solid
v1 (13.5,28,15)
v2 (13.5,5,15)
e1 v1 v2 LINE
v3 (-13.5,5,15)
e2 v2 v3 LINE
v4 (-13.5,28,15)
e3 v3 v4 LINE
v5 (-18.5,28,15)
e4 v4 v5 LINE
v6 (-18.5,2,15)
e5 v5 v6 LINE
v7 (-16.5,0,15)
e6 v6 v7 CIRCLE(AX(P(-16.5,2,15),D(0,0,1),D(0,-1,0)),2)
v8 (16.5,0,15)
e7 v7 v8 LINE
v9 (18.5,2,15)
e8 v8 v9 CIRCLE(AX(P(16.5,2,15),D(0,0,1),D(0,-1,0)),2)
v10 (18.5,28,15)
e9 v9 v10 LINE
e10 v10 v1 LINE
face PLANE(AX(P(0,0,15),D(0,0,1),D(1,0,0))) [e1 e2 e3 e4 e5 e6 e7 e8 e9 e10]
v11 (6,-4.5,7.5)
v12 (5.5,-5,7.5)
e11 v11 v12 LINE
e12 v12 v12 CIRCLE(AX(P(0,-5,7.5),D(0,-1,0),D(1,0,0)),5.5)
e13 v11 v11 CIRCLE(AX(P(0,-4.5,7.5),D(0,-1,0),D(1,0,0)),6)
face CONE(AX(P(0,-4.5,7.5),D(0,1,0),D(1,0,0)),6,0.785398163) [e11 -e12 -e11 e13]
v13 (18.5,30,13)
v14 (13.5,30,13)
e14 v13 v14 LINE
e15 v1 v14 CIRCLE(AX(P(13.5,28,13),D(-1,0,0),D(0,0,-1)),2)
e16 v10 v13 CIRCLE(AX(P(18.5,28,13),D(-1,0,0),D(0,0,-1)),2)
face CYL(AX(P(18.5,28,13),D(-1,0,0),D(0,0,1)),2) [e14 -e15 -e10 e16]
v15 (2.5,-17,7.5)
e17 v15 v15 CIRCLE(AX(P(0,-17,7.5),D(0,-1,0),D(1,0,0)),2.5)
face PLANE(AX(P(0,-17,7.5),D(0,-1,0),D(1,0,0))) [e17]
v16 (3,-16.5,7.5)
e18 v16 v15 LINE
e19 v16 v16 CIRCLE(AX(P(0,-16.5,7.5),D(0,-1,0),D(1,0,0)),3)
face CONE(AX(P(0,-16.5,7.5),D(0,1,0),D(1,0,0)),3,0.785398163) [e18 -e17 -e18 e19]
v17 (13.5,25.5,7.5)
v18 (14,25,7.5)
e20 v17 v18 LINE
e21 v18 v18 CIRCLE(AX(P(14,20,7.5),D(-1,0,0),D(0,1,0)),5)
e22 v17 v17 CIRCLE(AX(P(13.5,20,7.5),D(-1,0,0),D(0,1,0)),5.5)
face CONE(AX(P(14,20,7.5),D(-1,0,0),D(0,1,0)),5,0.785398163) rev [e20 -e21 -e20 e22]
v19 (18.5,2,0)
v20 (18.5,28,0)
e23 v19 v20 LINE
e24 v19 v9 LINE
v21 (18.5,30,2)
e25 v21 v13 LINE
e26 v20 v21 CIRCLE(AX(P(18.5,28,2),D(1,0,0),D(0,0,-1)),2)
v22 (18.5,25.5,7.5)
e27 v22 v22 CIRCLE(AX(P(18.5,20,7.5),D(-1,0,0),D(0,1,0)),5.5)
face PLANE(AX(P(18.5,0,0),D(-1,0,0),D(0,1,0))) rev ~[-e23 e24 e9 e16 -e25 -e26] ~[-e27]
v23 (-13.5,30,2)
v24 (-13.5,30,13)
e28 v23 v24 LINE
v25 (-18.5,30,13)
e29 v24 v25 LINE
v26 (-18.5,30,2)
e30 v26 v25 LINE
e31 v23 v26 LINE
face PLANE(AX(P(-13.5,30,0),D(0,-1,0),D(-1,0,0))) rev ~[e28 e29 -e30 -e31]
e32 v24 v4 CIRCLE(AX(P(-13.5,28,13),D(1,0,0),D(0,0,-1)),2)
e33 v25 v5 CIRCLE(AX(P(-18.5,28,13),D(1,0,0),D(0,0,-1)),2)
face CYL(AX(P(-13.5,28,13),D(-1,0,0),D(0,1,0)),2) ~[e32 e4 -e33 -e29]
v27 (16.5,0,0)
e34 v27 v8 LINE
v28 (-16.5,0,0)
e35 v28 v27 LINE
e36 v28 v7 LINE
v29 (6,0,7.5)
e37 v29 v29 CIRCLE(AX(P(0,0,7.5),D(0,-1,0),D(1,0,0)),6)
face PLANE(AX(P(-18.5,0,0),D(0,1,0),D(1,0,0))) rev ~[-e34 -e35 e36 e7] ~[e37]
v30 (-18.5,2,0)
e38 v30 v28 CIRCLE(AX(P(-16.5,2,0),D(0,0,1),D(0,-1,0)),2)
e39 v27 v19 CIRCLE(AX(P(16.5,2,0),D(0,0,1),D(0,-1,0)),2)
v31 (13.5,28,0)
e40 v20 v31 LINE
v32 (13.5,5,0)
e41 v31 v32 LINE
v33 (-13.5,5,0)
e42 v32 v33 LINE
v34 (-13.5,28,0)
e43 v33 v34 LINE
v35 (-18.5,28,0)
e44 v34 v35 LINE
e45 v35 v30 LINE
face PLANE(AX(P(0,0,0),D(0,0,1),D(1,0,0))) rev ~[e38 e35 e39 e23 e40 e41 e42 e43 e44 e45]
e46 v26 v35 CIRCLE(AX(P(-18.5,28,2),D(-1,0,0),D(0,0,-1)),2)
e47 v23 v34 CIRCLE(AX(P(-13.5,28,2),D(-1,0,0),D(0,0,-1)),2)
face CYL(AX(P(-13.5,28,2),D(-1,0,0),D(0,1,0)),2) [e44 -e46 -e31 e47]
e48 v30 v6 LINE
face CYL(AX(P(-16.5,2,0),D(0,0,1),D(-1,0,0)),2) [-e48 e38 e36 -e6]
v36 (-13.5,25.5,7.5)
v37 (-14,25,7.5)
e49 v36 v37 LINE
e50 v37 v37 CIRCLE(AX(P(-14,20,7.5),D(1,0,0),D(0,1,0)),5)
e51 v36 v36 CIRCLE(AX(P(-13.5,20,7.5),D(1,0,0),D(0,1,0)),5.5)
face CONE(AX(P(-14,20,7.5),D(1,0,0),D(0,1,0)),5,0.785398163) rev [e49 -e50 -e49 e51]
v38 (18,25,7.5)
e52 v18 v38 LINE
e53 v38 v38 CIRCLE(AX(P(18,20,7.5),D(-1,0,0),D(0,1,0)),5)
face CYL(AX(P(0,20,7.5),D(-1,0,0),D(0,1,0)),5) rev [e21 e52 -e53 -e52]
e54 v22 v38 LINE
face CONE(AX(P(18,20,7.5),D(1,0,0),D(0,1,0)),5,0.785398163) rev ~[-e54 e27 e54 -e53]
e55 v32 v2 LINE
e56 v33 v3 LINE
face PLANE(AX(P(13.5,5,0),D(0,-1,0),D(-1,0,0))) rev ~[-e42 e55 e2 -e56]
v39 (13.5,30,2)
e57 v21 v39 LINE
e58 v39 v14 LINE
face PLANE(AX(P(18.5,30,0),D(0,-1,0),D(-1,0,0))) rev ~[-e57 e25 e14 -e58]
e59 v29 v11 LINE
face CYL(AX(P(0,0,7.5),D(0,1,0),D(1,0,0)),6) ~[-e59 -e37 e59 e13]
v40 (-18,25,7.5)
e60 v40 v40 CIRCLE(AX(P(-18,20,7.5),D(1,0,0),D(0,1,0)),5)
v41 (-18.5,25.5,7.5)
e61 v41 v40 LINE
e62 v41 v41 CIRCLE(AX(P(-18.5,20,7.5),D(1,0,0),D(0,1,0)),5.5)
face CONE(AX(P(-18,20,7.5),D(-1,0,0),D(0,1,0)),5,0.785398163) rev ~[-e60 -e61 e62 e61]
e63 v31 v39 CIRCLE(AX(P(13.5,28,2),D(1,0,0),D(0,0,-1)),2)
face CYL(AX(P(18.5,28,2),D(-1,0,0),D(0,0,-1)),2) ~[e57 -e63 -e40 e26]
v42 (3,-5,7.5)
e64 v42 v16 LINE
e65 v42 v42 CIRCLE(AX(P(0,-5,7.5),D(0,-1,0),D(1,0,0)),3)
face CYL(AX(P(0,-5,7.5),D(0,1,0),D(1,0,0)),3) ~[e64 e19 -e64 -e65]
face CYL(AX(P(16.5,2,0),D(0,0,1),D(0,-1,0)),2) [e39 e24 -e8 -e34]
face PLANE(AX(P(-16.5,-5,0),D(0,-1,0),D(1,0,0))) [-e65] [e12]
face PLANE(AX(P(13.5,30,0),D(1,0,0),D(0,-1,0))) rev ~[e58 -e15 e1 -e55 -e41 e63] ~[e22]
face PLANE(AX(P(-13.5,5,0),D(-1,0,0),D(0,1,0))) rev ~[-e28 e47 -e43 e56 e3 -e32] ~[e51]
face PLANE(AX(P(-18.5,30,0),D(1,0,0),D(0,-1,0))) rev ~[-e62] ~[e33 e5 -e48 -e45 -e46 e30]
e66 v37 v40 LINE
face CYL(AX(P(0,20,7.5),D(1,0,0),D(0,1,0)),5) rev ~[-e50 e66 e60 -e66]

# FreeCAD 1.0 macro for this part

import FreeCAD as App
import Part
import Sketcher


def edges_at(feature, points):
    """Names of the edges that pass closest to the given points."""
    edges = feature.Shape.Edges
    near = lambda p: min(range(len(edges)), key=lambda i: edges[i].distToShape(Part.Vertex(*p))[0])
    return sorted({f"Edge{near(p) + 1}" for p in points})

doc = App.newDocument("Part")
body = doc.addObject("PartDesign::Body", "Body")

sketch1 = body.newObject("Sketcher::SketchObject", "Sketch")
sketch1.AttachmentSupport = (doc.getObject("XY_Plane"), [""])
sketch1.MapMode = "FlatFace"
sketch1.addGeometry(Part.LineSegment(App.Vector(-13.5, 30, 0), App.Vector(-18.5, 30, 0)), False)
sketch1.addGeometry(Part.LineSegment(App.Vector(-18.5, 30, 0), App.Vector(-18.5, 0, 0)), False)
sketch1.addGeometry(Part.LineSegment(App.Vector(-18.5, 0, 0), App.Vector(18.5, 0, 0)), False)
sketch1.addGeometry(Part.LineSegment(App.Vector(18.5, 0, 0), App.Vector(18.5, 30, 0)), False)
sketch1.addGeometry(Part.LineSegment(App.Vector(18.5, 30, 0), App.Vector(13.5, 30, 0)), False)
sketch1.addGeometry(Part.LineSegment(App.Vector(13.5, 30, 0), App.Vector(13.5, 5, 0)), False)
sketch1.addGeometry(Part.LineSegment(App.Vector(13.5, 5, 0), App.Vector(-13.5, 5, 0)), False)
sketch1.addGeometry(Part.LineSegment(App.Vector(-13.5, 5, 0), App.Vector(-13.5, 30, 0)), False)
sketch1.addConstraint(Sketcher.Constraint("Coincident", 0, 2, 1, 1))
sketch1.addConstraint(Sketcher.Constraint("Coincident", 1, 2, 2, 1))
sketch1.addConstraint(Sketcher.Constraint("Coincident", 2, 2, 3, 1))
sketch1.addConstraint(Sketcher.Constraint("Coincident", 3, 2, 4, 1))
sketch1.addConstraint(Sketcher.Constraint("Coincident", 4, 2, 5, 1))
sketch1.addConstraint(Sketcher.Constraint("Coincident", 5, 2, 6, 1))
sketch1.addConstraint(Sketcher.Constraint("Coincident", 6, 2, 7, 1))
sketch1.addConstraint(Sketcher.Constraint("Coincident", 7, 2, 0, 1))
sketch1.addConstraint(Sketcher.Constraint("Horizontal", 0))
sketch1.addConstraint(Sketcher.Constraint("Vertical", 1))
sketch1.addConstraint(Sketcher.Constraint("Horizontal", 2))
sketch1.addConstraint(Sketcher.Constraint("Vertical", 3))
sketch1.addConstraint(Sketcher.Constraint("Horizontal", 4))
sketch1.addConstraint(Sketcher.Constraint("Vertical", 5))
sketch1.addConstraint(Sketcher.Constraint("Horizontal", 6))
sketch1.addConstraint(Sketcher.Constraint("Vertical", 7))
sketch1.addConstraint(Sketcher.Constraint("Symmetric", 1, 2, 2, 2, -1, 1))
sketch1.addConstraint(Sketcher.Constraint("Symmetric", 4, 2, 7, 2, -2))
sketch1.addConstraint(Sketcher.Constraint("DistanceX", 0, 2, 0, 1, 5.0))
sketch1.addConstraint(Sketcher.Constraint("DistanceX", 2, 1, 2, 2, 37.0))
sketch1.addConstraint(Sketcher.Constraint("DistanceY", 1, 2, 1, 1, 30.0))
sketch1.addConstraint(Sketcher.Constraint("DistanceY", -1, 1, 5, 2, 5.0))
pad1 = body.newObject("PartDesign::Pad", "Pad")
pad1.Profile = sketch1
pad1.Length = 15

sketch2 = body.newObject("Sketcher::SketchObject", "Sketch001")
sketch2.AttachmentSupport = (doc.getObject("YZ_Plane"), [""])
sketch2.MapMode = "FlatFace"
sketch2.addGeometry(Part.Circle(App.Vector(20, 7.5, 0), App.Vector(0, 0, 1), 5), False)
sketch2.addConstraint(Sketcher.Constraint("Diameter", 0, 10.0))
sketch2.addConstraint(Sketcher.Constraint("DistanceX", -1, 1, 0, 3, 20.0))
sketch2.addConstraint(Sketcher.Constraint("DistanceY", -1, 1, 0, 3, 7.5))
pocket1 = body.newObject("PartDesign::Pocket", "Pocket")
pocket1.Profile = sketch2
pocket1.Type = "ThroughAll"
pocket1.Midplane = True
doc.recompute()

fillet = body.newObject("PartDesign::Fillet", "Fillet")
fillet.Base = (pocket1, edges_at(pocket1, [
    (-16, 30, 15),
    (-16, 30, 0),
    (16, 30, 15),
    (16, 30, 0),
    (18.5, 0, 7.5),
    (-18.5, 0, 7.5),
]))
fillet.Radius = 2

sketch3 = body.newObject("Sketcher::SketchObject", "Sketch002")
sketch3.AttachmentSupport = (doc.getObject("XZ_Plane"), [""])
sketch3.MapMode = "FlatFace"
sketch3.addGeometry(Part.Circle(App.Vector(0, 7.5, 0), App.Vector(0, 0, 1), 6), False)
sketch3.addConstraint(Sketcher.Constraint("PointOnObject", 0, 3, -2))
sketch3.addConstraint(Sketcher.Constraint("Diameter", 0, 12.0))
sketch3.addConstraint(Sketcher.Constraint("DistanceY", -1, 1, 0, 3, 7.5))
pad2 = body.newObject("PartDesign::Pad", "Pad001")
pad2.Profile = sketch3
pad2.Length = 5

sketch4 = body.newObject("Sketcher::SketchObject", "Sketch003")
sketch4.AttachmentSupport = (doc.getObject("XZ_Plane"), [""])
sketch4.MapMode = "FlatFace"
sketch4.AttachmentOffset = App.Placement(App.Vector(0, 0, 5), App.Rotation())
sketch4.addGeometry(Part.Circle(App.Vector(0, 7.5, 0), App.Vector(0, 0, 1), 3), False)
sketch4.addConstraint(Sketcher.Constraint("PointOnObject", 0, 3, -2))
sketch4.addConstraint(Sketcher.Constraint("Diameter", 0, 6.0))
sketch4.addConstraint(Sketcher.Constraint("DistanceY", -1, 1, 0, 3, 7.5))
pad3 = body.newObject("PartDesign::Pad", "Pad002")
pad3.Profile = sketch4
pad3.Length = 12
doc.recompute()

chamfer = body.newObject("PartDesign::Chamfer", "Chamfer")
chamfer.Base = (pad3, edges_at(pad3, [
    (-13.5, 15, 7.5),
    (13.5, 15, 7.5),
    (-18.5, 15, 7.5),
    (18.5, 15, 7.5),
    (-3, -17, 7.5),
    (-6, -5, 7.5),
]))
chamfer.Size = 0.5

doc.recompute()
